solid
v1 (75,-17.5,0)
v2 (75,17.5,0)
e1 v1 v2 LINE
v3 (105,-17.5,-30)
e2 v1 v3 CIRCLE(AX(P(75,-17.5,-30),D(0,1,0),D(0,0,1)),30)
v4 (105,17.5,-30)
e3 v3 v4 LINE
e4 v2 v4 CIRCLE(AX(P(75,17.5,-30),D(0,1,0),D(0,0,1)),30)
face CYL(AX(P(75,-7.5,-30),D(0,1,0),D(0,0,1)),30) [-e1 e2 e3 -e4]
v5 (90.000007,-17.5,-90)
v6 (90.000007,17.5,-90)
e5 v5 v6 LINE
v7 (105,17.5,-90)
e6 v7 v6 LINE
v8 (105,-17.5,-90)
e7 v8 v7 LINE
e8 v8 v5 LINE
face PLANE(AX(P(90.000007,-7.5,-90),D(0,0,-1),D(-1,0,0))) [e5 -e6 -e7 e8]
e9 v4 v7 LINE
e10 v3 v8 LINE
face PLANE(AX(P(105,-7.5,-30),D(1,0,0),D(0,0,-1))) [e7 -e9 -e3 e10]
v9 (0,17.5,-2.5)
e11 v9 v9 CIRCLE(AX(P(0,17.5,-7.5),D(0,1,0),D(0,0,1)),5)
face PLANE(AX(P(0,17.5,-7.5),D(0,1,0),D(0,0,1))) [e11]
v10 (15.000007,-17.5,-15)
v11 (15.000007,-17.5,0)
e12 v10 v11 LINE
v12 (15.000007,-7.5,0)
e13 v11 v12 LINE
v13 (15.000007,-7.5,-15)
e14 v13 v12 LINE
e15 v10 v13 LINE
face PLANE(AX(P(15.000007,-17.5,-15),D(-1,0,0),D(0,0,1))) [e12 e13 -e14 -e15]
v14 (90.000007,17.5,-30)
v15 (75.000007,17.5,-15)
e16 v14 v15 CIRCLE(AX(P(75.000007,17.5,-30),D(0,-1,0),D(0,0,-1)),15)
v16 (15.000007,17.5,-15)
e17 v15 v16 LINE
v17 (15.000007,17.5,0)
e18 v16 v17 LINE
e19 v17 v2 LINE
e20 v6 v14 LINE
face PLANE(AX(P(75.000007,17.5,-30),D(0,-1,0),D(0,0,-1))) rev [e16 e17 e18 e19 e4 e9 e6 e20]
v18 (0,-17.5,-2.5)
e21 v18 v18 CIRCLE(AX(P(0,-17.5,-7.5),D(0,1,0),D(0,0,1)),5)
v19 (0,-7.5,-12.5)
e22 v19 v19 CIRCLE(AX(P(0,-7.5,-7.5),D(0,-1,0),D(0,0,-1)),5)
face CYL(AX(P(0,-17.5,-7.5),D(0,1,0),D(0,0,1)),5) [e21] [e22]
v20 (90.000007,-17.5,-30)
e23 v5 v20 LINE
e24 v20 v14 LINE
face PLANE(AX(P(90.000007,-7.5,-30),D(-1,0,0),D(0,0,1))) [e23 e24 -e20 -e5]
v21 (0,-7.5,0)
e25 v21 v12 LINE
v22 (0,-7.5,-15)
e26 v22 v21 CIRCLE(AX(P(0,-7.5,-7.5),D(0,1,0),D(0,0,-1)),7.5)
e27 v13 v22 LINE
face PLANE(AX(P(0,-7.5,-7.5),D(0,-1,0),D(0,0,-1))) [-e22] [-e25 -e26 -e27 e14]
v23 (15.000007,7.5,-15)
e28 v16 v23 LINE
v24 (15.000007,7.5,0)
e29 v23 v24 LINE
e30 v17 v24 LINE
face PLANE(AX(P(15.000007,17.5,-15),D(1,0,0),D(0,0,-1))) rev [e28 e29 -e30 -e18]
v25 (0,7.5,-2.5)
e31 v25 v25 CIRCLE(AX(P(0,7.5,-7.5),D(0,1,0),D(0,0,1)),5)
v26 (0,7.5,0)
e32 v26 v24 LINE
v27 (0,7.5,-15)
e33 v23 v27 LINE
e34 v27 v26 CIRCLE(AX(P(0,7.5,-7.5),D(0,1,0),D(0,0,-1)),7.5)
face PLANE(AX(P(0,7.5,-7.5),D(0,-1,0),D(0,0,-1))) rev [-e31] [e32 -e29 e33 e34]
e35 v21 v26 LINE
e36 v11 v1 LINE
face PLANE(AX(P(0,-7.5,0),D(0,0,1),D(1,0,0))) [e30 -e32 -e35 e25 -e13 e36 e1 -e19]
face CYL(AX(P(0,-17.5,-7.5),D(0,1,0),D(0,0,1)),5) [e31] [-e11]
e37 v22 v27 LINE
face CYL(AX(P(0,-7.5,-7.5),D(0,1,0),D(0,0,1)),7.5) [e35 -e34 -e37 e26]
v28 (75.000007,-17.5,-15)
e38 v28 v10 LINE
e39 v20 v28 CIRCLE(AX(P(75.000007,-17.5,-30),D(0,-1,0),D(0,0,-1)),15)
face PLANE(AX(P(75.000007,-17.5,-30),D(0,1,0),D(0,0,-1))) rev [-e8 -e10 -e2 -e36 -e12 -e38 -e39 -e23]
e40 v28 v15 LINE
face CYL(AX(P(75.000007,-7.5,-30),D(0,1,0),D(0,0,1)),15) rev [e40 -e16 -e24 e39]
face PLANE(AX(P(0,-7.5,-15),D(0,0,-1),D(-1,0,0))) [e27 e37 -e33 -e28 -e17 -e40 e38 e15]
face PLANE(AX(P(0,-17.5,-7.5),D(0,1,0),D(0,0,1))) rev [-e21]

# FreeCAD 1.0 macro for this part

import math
import FreeCAD as App
import Part
import Sketcher

V = App.Vector

doc = App.newDocument("Part")
params = doc.addObject("Spreadsheet::Sheet", "Params")
for row, (alias, value) in enumerate([
    ("sketch1_diameter", "10 mm"),
    ("sketch1_radius", "30 mm"),
    ("sketch1_radius2", "15 mm"),
    ("sketch1_width", "75 mm"),
    ("sketch1_height", "60 mm"),
    ("pad1_length", "7.5 mm"),
    ("pad1_length2", "7.5 mm"),
    ("sketch2_diameter", "10 mm"),
    ("pad2_length", "35 mm"),
    ("sketch3_radius", "15 mm"),
    ("sketch3_radius2", "30 mm"),
    ("sketch3_width", "60 mm"),
    ("pad3_length", "10 mm"),
], start=1):
    params.set(f"A{row}", alias)
    params.set(f"B{row}", "=" + value)
    params.setAlias(f"B{row}", alias)

body = doc.addObject("PartDesign::Body", "Body")

# Sketch on XZ plane
sketch1 = doc.addObject("Sketcher::SketchObject", "Sketch")
body.addObject(sketch1)
sketch1.AttachmentSupport = (doc.XZ_Plane, [""])
sketch1.MapMode = "FlatFace"
sketch1.addGeometry([
    Part.LineSegment(V(0, 0, 0), V(75, 0, 0)),  # 0
    Part.ArcOfCircle(Part.Circle(V(75, -30, 0), V(0, 0, 1), 30), math.radians(0), math.radians(90)),  # 1
    Part.LineSegment(V(105, -30, 0), V(105, -90, 0)),  # 2
    Part.LineSegment(V(105, -90, 0), V(90, -90, 0)),  # 3
    Part.LineSegment(V(90, -90, 0), V(90, -30, 0)),  # 4
    Part.ArcOfCircle(Part.Circle(V(75, -30, 0), V(0, 0, 1), 15), math.radians(0), math.radians(90)),  # 5
    Part.LineSegment(V(75, -15, 0), V(0, -15, 0)),  # 6
    Part.ArcOfCircle(Part.Circle(V(0, -8, 0), V(0, 0, 1), 8), math.radians(90), math.radians(270)),  # 7
    Part.Circle(V(0, -8, 0), V(0, 0, 1), 5),  # 8
], False)
sketch1.addConstraint([
    Sketcher.Constraint("Tangent", 0, 2, 1, 2),
    Sketcher.Constraint("Tangent", 1, 1, 2, 1),
    Sketcher.Constraint("Coincident", 2, 2, 3, 1),
    Sketcher.Constraint("Coincident", 3, 2, 4, 1),
    Sketcher.Constraint("Tangent", 4, 2, 5, 1),
    Sketcher.Constraint("Tangent", 5, 2, 6, 1),
    Sketcher.Constraint("Tangent", 6, 2, 7, 2),
    Sketcher.Constraint("Tangent", 7, 1, 0, 1),
    Sketcher.Constraint("Horizontal", 0),
    Sketcher.Constraint("Vertical", 2),
    Sketcher.Constraint("Horizontal", 3),
    Sketcher.Constraint("Vertical", 4),
    Sketcher.Constraint("Horizontal", 6),
    Sketcher.Constraint("Coincident", 7, 1, -1, 1),
    Sketcher.Constraint("Coincident", 5, 3, 1, 3),
    Sketcher.Constraint("Coincident", 8, 3, 7, 3),
    Sketcher.Constraint("Diameter", 8, 10.0),
    Sketcher.Constraint("Radius", 1, 30.0),
    Sketcher.Constraint("Radius", 5, 15.0),
    Sketcher.Constraint("DistanceX", 0, 1, 0, 2, 75.0),
    Sketcher.Constraint("DistanceY", 2, 2, 2, 1, 60.0),
])
sketch1.setExpression("Constraints[16]", "Params.sketch1_diameter")
sketch1.setExpression("Constraints[17]", "Params.sketch1_radius")
sketch1.setExpression("Constraints[18]", "Params.sketch1_radius2")
sketch1.setExpression("Constraints[19]", "Params.sketch1_width")
sketch1.setExpression("Constraints[20]", "Params.sketch1_height")
pad1 = doc.addObject("PartDesign::Pad", "Pad")
body.addObject(pad1)
pad1.Profile = sketch1
pad1.Type = "TwoLengths"
pad1.setExpression("Length", "Params.pad1_length")
pad1.setExpression("Length2", "Params.pad1_length2")
pad1.Reversed = True

# Sketch on XZ plane
sketch2 = doc.addObject("Sketcher::SketchObject", "Sketch001")
body.addObject(sketch2)
sketch2.AttachmentSupport = (doc.XZ_Plane, [""])
sketch2.MapMode = "FlatFace"
sketch2.addGeometry(Part.Circle(V(0, -8, 0), V(0, 0, 1), 5), False)
sketch2.addConstraint([
    Sketcher.Constraint("PointOnObject", 0, 3, -2),
    Sketcher.Constraint("Diameter", 0, 10.0),
    Sketcher.Constraint("DistanceY", 0, 3, -1, 1, 7.5),
])
sketch2.setExpression("Constraints[1]", "Params.sketch2_diameter")
pad2 = doc.addObject("PartDesign::Pad", "Pad001")
body.addObject(pad2)
pad2.Profile = sketch2
pad2.setExpression("Length", "Params.pad2_length")
pad2.Midplane = True

# Sketch on XZ plane
sketch3 = doc.addObject("Sketcher::SketchObject", "Sketch002")
body.addObject(sketch3)
sketch3.AttachmentSupport = (doc.XZ_Plane, [""])
sketch3.MapMode = "FlatFace"
sketch3.AttachmentOffset = App.Placement(V(0, 0, -7.5), App.Rotation())
sketch3.addGeometry([
    Part.LineSegment(V(90, -90, 0), V(90, -30, 0)),  # 0
    Part.ArcOfCircle(Part.Circle(V(75, -30, 0), V(0, 0, 1), 15), math.radians(0), math.radians(90)),  # 1
    Part.LineSegment(V(75, -15, 0), V(15, -15, 0)),  # 2
    Part.LineSegment(V(15, -15, 0), V(15, 0, 0)),  # 3
    Part.LineSegment(V(15, 0, 0), V(75, 0, 0)),  # 4
    Part.ArcOfCircle(Part.Circle(V(75, -30, 0), V(0, 0, 1), 30), math.radians(0), math.radians(90)),  # 5
    Part.LineSegment(V(105, -30, 0), V(105, -90, 0)),  # 6
    Part.LineSegment(V(105, -90, 0), V(90, -90, 0)),  # 7
], False)
sketch3.addConstraint([
    Sketcher.Constraint("Tangent", 0, 2, 1, 1),
    Sketcher.Constraint("Tangent", 1, 2, 2, 1),
    Sketcher.Constraint("Coincident", 2, 2, 3, 1),
    Sketcher.Constraint("Coincident", 3, 2, 4, 1),
    Sketcher.Constraint("Tangent", 4, 2, 5, 2),
    Sketcher.Constraint("Tangent", 5, 1, 6, 1),
    Sketcher.Constraint("Coincident", 6, 2, 7, 1),
    Sketcher.Constraint("Coincident", 7, 2, 0, 1),
    Sketcher.Constraint("Vertical", 0),
    Sketcher.Constraint("Horizontal", 2),
    Sketcher.Constraint("Vertical", 3),
    Sketcher.Constraint("Horizontal", 4),
    Sketcher.Constraint("Vertical", 6),
    Sketcher.Constraint("Horizontal", 7),
    Sketcher.Constraint("Coincident", 5, 3, 1, 3),
    Sketcher.Constraint("PointOnObject", 3, 2, -1),
    Sketcher.Constraint("Equal", 2, 0),
    Sketcher.Constraint("Radius", 1, 15.0),
    Sketcher.Constraint("Radius", 5, 30.0),
    Sketcher.Constraint("DistanceX", 2, 2, 2, 1, 60.0),
    Sketcher.Constraint("DistanceX", -1, 1, 5, 3, 75.0),
])
sketch3.setExpression("Constraints[17]", "Params.sketch3_radius")
sketch3.setExpression("Constraints[18]", "Params.sketch3_radius2")
sketch3.setExpression("Constraints[19]", "Params.sketch3_width")
pad3 = doc.addObject("PartDesign::Pad", "Pad002")
body.addObject(pad3)
pad3.Profile = sketch3
pad3.setExpression("Length", "Params.pad3_length")
pad3.Reversed = True
doc.recompute()

mirrored = doc.addObject("PartDesign::Mirrored", "Mirrored")
body.addObject(mirrored)
mirrored.Originals = [pad3]
mirrored.MirrorPlane = (doc.XZ_Plane, [""])
body.Tip = mirrored

doc.recompute()
